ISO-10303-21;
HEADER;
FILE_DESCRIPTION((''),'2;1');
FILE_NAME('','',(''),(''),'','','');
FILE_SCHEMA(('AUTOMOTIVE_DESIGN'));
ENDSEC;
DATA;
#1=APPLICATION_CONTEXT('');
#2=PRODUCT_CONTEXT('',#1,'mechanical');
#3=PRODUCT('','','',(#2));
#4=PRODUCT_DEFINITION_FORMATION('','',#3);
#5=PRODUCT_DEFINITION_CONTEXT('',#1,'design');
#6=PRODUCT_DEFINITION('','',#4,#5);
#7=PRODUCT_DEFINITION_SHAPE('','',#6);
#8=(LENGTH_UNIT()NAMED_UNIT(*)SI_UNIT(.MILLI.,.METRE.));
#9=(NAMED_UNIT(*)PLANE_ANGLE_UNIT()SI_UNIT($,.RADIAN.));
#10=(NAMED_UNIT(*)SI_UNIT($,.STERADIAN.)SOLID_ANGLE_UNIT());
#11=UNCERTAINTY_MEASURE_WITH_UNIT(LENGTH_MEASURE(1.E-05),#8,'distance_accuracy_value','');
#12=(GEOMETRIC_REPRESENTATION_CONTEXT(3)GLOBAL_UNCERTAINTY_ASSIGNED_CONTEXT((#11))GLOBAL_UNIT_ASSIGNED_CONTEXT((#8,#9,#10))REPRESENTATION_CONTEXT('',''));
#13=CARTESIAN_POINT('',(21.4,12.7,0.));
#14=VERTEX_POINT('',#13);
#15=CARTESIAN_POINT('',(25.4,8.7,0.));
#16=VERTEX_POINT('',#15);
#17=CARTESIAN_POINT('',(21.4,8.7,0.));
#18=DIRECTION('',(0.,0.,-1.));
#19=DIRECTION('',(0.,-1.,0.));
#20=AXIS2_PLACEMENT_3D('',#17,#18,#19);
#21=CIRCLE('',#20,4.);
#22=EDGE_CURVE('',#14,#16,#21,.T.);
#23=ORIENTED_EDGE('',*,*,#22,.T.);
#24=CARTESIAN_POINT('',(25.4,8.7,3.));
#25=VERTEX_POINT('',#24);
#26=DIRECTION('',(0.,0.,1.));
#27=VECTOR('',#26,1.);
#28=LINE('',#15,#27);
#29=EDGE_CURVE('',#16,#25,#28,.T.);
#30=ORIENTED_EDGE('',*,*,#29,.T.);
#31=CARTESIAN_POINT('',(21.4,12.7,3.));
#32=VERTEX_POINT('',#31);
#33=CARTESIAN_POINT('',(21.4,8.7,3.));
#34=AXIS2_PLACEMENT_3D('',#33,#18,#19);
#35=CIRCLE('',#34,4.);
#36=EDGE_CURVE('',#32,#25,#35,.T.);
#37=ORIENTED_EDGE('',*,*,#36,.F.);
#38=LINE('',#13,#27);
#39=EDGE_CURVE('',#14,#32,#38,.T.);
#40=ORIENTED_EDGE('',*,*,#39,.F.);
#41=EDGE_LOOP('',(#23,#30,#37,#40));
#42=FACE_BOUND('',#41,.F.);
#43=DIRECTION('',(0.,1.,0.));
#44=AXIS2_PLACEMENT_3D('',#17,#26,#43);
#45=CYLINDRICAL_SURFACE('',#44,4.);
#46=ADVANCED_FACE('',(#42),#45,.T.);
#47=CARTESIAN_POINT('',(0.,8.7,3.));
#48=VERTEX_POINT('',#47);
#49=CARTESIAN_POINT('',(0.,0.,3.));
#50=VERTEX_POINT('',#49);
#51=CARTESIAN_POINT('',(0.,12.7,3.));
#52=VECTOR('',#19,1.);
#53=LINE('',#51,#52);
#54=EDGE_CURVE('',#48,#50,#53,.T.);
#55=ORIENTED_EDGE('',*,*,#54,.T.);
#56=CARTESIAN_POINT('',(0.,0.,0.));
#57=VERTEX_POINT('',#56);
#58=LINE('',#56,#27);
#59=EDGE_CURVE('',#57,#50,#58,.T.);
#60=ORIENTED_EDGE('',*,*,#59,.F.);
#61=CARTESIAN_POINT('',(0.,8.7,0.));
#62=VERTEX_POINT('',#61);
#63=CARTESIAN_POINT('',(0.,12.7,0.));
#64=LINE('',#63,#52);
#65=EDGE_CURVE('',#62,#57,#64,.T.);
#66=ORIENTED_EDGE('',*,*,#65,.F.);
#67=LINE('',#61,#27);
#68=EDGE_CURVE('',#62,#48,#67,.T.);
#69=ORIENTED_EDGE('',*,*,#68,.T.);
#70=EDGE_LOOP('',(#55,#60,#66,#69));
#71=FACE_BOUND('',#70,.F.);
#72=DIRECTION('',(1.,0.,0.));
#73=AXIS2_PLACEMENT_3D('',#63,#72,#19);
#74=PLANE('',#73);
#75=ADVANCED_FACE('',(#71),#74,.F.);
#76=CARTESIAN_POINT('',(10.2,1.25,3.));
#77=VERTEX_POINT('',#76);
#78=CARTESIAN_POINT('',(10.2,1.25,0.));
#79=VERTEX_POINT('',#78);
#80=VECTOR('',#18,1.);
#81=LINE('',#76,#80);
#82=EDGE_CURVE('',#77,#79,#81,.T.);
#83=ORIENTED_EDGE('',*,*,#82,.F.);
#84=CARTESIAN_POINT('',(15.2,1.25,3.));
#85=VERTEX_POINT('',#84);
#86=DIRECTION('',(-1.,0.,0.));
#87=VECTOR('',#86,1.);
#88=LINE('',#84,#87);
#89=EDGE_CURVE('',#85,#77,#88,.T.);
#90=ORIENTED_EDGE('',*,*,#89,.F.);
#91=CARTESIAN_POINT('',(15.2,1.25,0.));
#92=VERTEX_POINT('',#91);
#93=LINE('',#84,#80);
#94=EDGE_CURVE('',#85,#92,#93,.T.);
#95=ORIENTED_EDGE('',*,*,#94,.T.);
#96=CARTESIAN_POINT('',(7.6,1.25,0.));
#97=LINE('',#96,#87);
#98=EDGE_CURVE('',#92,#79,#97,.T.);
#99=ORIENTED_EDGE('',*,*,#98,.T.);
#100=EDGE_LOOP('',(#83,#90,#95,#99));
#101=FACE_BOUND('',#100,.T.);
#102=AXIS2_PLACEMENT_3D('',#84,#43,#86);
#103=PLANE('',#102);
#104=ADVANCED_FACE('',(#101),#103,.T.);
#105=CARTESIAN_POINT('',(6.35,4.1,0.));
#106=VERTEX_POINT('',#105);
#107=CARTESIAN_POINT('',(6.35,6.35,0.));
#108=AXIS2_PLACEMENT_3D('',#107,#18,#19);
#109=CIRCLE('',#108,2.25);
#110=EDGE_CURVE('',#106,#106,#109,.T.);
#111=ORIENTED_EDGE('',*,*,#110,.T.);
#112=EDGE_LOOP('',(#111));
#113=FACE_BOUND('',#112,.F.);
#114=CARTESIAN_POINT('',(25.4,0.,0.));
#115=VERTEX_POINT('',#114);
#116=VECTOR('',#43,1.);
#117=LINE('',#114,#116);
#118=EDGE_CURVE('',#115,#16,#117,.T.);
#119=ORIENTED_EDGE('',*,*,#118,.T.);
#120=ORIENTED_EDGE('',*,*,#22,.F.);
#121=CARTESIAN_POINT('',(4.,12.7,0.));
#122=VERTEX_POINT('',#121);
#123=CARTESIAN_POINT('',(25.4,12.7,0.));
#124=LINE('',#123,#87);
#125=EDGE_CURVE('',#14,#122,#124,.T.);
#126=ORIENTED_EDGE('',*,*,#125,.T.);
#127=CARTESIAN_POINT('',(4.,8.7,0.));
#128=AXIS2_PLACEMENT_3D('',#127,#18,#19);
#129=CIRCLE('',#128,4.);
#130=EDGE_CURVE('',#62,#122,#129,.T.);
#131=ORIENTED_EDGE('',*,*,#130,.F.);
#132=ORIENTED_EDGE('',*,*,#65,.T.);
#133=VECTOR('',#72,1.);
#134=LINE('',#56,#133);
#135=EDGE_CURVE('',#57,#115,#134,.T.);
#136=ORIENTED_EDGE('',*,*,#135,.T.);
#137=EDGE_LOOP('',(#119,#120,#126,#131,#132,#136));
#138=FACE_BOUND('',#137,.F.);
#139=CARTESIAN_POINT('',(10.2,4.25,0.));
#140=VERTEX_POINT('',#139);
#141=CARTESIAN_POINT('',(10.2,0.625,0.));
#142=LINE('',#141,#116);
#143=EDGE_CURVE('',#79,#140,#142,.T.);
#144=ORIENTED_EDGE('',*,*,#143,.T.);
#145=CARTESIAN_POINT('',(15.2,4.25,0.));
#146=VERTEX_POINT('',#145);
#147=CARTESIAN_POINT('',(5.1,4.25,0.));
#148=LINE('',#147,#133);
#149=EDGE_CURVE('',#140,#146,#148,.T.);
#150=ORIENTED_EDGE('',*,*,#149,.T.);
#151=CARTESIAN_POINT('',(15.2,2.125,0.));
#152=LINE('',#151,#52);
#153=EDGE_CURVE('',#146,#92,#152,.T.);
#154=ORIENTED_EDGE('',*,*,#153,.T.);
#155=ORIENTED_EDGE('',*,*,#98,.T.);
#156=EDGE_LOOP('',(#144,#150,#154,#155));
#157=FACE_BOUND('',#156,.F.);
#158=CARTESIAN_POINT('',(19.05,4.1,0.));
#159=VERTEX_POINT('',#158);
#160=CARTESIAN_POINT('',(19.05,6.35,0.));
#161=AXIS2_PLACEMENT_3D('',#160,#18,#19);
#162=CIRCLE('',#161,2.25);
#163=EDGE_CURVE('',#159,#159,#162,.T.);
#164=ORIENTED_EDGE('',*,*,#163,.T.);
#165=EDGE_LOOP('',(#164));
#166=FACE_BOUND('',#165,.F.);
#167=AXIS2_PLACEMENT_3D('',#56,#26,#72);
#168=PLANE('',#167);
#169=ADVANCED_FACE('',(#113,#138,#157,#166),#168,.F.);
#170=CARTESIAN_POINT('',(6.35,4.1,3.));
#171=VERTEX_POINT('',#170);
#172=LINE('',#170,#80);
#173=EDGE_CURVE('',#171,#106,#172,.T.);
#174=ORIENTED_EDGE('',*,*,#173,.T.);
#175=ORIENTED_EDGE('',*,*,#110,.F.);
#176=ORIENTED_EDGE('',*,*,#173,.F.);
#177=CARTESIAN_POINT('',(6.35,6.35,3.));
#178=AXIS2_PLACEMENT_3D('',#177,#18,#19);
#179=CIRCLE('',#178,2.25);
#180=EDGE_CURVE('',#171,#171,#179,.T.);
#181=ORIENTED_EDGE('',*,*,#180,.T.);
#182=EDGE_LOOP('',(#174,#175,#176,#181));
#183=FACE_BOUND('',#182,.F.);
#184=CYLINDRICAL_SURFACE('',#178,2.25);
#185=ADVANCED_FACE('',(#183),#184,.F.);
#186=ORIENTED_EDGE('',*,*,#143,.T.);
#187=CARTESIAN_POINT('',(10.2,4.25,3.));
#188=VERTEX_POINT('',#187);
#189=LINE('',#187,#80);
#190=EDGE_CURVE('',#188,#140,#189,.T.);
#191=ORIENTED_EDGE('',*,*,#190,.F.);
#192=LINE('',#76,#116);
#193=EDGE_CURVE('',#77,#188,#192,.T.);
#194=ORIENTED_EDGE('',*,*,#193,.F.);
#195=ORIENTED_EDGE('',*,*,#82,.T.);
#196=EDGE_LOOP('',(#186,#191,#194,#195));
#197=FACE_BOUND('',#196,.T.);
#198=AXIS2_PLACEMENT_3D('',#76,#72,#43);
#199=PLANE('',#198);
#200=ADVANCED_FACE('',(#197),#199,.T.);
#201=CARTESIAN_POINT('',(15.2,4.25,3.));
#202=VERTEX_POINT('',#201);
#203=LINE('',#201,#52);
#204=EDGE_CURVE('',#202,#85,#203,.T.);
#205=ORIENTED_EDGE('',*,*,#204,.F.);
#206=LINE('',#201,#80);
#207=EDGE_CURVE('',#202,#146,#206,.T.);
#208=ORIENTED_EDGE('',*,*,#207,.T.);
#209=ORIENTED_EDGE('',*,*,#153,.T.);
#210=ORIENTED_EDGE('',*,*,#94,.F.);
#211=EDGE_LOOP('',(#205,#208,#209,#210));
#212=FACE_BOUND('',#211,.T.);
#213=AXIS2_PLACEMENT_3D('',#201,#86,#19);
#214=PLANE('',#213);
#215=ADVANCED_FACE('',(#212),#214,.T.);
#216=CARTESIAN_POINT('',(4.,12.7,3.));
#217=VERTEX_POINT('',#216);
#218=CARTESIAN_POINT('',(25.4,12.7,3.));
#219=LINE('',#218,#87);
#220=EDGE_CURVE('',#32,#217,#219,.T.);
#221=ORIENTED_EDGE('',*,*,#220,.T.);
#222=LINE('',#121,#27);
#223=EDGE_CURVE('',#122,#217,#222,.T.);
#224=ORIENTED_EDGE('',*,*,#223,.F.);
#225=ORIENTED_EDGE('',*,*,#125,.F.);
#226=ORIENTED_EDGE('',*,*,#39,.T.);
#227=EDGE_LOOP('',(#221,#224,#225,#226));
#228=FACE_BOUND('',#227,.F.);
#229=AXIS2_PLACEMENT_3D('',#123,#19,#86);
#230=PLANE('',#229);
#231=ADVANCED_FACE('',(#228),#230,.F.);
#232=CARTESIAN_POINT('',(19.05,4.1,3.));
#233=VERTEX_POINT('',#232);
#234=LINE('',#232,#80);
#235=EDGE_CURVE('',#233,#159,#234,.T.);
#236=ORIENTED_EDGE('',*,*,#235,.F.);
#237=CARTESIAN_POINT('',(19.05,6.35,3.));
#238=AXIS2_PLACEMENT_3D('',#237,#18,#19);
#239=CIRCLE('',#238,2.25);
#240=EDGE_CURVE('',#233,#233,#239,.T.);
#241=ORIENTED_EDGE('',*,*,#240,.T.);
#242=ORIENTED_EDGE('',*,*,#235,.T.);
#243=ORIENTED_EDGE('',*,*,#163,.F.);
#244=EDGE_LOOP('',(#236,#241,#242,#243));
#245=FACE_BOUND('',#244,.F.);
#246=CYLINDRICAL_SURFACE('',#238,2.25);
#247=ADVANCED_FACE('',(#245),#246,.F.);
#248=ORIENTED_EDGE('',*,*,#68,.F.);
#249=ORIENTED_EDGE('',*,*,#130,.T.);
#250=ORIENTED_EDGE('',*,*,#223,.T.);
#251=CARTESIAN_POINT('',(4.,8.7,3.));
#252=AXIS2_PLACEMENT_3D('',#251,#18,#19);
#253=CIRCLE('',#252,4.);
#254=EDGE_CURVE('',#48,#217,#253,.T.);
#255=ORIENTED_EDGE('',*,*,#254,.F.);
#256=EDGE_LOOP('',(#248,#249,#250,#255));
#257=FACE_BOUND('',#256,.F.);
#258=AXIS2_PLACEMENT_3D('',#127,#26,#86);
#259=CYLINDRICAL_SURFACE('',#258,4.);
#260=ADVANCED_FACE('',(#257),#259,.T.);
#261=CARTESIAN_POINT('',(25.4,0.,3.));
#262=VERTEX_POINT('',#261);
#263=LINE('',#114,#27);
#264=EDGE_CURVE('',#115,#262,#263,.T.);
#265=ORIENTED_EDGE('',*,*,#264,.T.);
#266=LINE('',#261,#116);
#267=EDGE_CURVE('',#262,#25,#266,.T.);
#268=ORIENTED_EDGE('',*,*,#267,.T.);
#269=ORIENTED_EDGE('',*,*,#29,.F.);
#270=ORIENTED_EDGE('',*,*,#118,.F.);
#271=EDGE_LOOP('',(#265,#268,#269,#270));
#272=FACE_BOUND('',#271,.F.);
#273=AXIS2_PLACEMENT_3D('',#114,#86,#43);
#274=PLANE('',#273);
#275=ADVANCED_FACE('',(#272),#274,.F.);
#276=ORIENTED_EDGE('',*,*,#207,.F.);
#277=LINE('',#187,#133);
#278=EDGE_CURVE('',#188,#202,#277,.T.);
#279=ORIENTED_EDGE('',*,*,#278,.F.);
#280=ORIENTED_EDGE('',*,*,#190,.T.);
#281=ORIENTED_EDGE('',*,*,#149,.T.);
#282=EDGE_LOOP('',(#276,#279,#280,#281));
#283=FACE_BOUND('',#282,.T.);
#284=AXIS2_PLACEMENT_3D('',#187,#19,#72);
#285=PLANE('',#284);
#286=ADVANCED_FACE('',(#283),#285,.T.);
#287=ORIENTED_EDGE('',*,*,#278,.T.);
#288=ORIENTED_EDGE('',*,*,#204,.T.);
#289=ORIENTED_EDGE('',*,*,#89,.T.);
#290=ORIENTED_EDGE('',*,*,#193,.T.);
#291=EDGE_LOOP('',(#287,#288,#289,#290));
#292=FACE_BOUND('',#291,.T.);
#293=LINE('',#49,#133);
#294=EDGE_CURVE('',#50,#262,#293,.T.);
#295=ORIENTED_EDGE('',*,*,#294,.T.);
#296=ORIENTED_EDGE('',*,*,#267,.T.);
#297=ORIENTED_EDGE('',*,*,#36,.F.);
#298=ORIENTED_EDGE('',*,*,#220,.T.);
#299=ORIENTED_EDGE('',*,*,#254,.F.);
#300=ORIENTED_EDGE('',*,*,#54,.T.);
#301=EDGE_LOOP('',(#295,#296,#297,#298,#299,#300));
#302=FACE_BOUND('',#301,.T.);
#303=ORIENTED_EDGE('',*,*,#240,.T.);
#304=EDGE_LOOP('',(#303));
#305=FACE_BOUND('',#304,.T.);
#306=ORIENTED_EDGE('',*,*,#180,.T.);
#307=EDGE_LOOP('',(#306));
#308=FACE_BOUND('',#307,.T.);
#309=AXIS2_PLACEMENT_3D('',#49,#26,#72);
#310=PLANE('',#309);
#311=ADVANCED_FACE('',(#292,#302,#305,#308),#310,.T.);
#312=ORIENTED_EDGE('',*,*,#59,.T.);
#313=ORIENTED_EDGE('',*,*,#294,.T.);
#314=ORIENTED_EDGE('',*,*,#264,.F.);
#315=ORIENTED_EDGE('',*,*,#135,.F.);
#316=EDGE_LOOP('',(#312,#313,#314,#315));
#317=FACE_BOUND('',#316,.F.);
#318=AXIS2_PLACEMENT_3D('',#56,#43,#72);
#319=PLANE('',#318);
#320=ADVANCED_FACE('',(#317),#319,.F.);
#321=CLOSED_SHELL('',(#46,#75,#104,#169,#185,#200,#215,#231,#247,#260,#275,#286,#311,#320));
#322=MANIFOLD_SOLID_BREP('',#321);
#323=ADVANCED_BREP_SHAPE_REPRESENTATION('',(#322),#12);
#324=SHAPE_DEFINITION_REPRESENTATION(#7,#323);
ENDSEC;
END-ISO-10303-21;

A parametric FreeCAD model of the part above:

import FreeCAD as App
import Part
import Sketcher
from FreeCAD import Vector
Q = App.Units.Quantity


def edges_at(feature, points):
    """Names of the edges that pass closest to the given points."""
    edges = feature.Shape.Edges
    near = lambda p: min(range(len(edges)), key=lambda i: edges[i].distToShape(Part.Vertex(*p))[0])
    return sorted({f"Edge{near(p) + 1}" for p in points})

doc = App.newDocument("Part")
body = doc.addObject("PartDesign::Body", "Body")

# Sketch on XY plane
sketch1 = doc.addObject("Sketcher::SketchObject", "Sketch")
body.addObject(sketch1)
sketch1.AttachmentSupport = (doc.XY_Plane, [""])
sketch1.MapMode = "FlatFace"
sketch1.addGeometry([
    Part.LineSegment(Vector(0, 13, 0), Vector(0, 0, 0)),
    Part.LineSegment(Vector(0, 0, 0), Vector(25, 0, 0)),
    Part.LineSegment(Vector(25, 0, 0), Vector(25, 13, 0)),
    Part.LineSegment(Vector(25, 13, 0), Vector(0, 13, 0)),
], False)
sketch1.addConstraint([
    Sketcher.Constraint("Coincident", 0, 2, 1, 1),
    Sketcher.Constraint("Coincident", 1, 2, 2, 1),
    Sketcher.Constraint("Coincident", 2, 2, 3, 1),
    Sketcher.Constraint("Coincident", 3, 2, 0, 1),
    Sketcher.Constraint("Vertical", 0),
    Sketcher.Constraint("Horizontal", 1),
    Sketcher.Constraint("Vertical", 2),
    Sketcher.Constraint("Horizontal", 3),
    Sketcher.Constraint("Coincident", 0, 2, -1, 1),
    Sketcher.Constraint("DistanceX", 1, 1, 1, 2, Q("25.4 mm")),
    Sketcher.Constraint("DistanceY", 0, 2, 0, 1, Q("12.7 mm")),
])
pad1 = doc.addObject("PartDesign::Pad", "Pad")
body.addObject(pad1)
pad1.Profile = sketch1
pad1.Length = 3
doc.recompute()

fillet = doc.addObject("PartDesign::Fillet", "Fillet")
body.addObject(fillet)
fillet.Base = (pad1, edges_at(pad1, [(0, 12.7, 1.5), (25.4, 12.7, 1.5)]))
fillet.Radius = 4

# Sketch on XY plane
sketch2 = doc.addObject("Sketcher::SketchObject", "Sketch001")
body.addObject(sketch2)
sketch2.AttachmentSupport = (doc.XY_Plane, [""])
sketch2.MapMode = "FlatFace"
sketch2.AttachmentOffset = App.Placement(Vector(0, 0, 3), App.Rotation())
sketch2.addGeometry([
    Part.LineSegment(Vector(15.2, 4.2, 0), Vector(10.2, 4.2, 0)),
    Part.LineSegment(Vector(10.2, 4.2, 0), Vector(10.2, 1.2, 0)),
    Part.LineSegment(Vector(10.2, 1.2, 0), Vector(15.2, 1.2, 0)),
    Part.LineSegment(Vector(15.2, 1.2, 0), Vector(15.2, 4.2, 0)),
], False)
sketch2.addConstraint([
    Sketcher.Constraint("Coincident", 0, 2, 1, 1),
    Sketcher.Constraint("Coincident", 1, 2, 2, 1),
    Sketcher.Constraint("Coincident", 2, 2, 3, 1),
    Sketcher.Constraint("Coincident", 3, 2, 0, 1),
    Sketcher.Constraint("Horizontal", 0),
    Sketcher.Constraint("Vertical", 1),
    Sketcher.Constraint("Horizontal", 2),
    Sketcher.Constraint("Vertical", 3),
    Sketcher.Constraint("DistanceX", 0, 2, 0, 1, Q("5 mm")),
    Sketcher.Constraint("DistanceY", 1, 2, 1, 1, Q("3 mm")),
    Sketcher.Constraint("DistanceY", -1, 1, 1, 2, Q("1.25 mm")),
    Sketcher.Constraint("DistanceX", -1, 1, 0, 2, Q("10.2 mm")),
])
pocket1 = doc.addObject("PartDesign::Pocket", "Pocket")
body.addObject(pocket1)
pocket1.Profile = sketch2
pocket1.Type = "ThroughAll"

# Sketch on XY plane
sketch3 = doc.addObject("Sketcher::SketchObject", "Sketch002")
body.addObject(sketch3)
sketch3.AttachmentSupport = (doc.XY_Plane, [""])
sketch3.MapMode = "FlatFace"
sketch3.AttachmentOffset = App.Placement(Vector(0, 0, 3), App.Rotation())
sketch3.addGeometry([
    Part.Circle(Vector(19.1, 6.3, 0), Vector(0, 0, 1), 2.2),
    Part.Circle(Vector(6.3, 6.3, 0), Vector(0, 0, 1), 2.2),
], False)
sketch3.addConstraint([
    Sketcher.Constraint("Equal", 0, 1),
    Sketcher.Constraint("Horizontal", 0, 3, 1, 3),
    Sketcher.Constraint("Diameter", 0, Q("4.5 mm")),
    Sketcher.Constraint("DistanceX", 1, 3, 0, 3, Q("12.7 mm")),
    Sketcher.Constraint("DistanceX", -1, 1, 0, 3, Q("19.05 mm")),
    Sketcher.Constraint("DistanceY", -1, 1, 0, 3, Q("6.35 mm")),
])
doc.recompute()
hole = doc.addObject("PartDesign::Hole", "Hole")
body.addObject(hole)
hole.Profile = sketch3
hole.ThreadType = "None"
hole.Diameter = 4.5
hole.DepthType = "ThroughAll"

doc.recompute()
